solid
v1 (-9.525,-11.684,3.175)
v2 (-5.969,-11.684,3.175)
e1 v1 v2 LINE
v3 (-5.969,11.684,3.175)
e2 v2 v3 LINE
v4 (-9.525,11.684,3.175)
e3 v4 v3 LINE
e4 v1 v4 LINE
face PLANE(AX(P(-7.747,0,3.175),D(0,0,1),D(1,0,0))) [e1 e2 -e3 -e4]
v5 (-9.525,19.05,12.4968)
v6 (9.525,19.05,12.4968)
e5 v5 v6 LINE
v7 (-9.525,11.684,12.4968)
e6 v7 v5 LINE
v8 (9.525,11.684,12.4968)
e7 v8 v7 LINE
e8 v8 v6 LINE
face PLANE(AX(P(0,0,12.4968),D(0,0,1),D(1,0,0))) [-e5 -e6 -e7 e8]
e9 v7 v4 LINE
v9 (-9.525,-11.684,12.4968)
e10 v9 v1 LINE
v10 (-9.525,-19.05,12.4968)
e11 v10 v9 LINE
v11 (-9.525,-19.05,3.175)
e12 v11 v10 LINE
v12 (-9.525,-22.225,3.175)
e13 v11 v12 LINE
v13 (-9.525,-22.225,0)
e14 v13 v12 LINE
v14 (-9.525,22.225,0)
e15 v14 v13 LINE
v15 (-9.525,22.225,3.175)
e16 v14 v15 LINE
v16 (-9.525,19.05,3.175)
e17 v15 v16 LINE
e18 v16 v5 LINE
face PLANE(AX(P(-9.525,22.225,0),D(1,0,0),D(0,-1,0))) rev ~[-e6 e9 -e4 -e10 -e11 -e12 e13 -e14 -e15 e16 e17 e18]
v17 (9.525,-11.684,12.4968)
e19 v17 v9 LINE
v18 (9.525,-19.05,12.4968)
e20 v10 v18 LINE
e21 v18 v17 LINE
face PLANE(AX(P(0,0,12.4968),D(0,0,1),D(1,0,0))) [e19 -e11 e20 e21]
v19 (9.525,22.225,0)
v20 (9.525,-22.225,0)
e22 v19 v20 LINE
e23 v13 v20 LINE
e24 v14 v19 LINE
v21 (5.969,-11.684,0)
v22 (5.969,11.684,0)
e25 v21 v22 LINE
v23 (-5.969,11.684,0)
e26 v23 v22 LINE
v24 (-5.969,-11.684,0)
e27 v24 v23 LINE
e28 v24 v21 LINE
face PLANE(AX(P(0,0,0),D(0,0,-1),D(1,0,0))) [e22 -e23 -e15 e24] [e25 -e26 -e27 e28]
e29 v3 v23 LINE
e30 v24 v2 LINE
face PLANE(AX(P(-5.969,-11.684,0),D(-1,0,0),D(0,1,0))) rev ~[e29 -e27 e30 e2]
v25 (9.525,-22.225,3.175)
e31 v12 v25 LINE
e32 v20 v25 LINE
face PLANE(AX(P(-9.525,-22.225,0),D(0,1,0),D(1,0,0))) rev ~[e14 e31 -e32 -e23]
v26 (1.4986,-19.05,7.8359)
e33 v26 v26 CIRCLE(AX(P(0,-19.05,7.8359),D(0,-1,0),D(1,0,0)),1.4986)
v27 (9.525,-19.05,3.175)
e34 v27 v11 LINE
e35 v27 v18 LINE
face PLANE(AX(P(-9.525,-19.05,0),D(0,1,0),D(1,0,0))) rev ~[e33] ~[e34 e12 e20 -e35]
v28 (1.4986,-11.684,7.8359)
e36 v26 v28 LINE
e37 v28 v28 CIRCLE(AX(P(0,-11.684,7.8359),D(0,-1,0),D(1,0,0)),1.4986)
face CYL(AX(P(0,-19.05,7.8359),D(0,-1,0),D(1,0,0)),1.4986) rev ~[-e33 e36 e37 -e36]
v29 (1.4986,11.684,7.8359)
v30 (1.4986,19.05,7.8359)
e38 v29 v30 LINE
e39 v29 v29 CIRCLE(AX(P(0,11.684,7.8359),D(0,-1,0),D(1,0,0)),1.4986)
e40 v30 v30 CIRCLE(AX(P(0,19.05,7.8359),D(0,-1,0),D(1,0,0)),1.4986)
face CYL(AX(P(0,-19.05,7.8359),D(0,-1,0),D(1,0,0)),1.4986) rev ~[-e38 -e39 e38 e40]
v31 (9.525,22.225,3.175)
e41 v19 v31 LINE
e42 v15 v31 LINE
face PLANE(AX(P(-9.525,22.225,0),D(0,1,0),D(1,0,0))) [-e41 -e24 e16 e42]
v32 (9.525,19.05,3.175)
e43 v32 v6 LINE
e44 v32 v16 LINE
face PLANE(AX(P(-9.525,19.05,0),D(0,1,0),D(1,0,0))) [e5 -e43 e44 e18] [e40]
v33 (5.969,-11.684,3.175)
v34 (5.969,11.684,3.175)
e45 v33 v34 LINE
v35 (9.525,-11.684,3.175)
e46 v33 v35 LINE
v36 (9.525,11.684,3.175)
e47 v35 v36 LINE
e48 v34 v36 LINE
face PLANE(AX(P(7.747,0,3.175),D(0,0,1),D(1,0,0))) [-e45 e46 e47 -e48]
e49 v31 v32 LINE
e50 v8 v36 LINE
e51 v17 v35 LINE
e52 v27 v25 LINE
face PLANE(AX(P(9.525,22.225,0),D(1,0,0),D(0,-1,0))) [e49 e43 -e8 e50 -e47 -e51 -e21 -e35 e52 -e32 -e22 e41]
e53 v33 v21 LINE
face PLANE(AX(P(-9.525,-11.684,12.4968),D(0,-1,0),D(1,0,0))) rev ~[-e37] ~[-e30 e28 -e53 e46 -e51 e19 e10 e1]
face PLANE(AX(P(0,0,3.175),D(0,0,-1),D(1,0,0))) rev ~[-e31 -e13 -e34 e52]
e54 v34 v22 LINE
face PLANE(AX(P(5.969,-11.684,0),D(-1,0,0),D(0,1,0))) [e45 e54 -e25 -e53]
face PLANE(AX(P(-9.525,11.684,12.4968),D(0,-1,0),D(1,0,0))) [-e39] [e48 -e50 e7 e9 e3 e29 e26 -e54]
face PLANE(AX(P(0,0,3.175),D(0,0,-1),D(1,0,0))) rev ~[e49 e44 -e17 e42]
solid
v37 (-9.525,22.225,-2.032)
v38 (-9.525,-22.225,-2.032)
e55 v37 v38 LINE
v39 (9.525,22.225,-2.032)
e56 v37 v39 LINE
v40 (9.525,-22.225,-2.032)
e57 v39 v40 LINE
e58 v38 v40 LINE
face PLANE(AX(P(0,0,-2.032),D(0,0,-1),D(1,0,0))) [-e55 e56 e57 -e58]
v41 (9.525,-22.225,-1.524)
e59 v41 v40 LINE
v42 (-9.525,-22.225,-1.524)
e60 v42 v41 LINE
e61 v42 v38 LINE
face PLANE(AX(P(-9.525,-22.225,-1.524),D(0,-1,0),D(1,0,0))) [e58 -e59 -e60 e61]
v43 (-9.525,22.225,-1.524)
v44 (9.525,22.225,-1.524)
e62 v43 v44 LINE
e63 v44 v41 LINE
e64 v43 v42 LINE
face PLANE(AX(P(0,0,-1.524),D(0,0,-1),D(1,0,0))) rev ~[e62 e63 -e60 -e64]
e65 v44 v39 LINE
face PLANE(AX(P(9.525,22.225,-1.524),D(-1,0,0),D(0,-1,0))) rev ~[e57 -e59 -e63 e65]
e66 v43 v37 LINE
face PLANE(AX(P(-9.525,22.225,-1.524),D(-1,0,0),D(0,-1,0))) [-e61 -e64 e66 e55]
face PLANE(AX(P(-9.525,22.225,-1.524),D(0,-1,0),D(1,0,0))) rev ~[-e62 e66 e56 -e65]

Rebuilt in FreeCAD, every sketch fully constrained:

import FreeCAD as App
import Part
import Sketcher
from FreeCAD import Vector
Q = App.Units.Quantity

doc = App.newDocument("Part")
body = doc.addObject("PartDesign::Body", "Body")

# Sketch on XY plane
sketch1 = body.newObject("Sketcher::SketchObject", "Sketch")
sketch1.AttachmentSupport = (doc.getObject("XY_Plane"), [""])
sketch1.MapMode = "FlatFace"
sketch1.addGeometry([
    Part.LineSegment(Vector(-9.525, 19.05, 0), Vector(-9.525, -19.05, 0)),  # 0
    Part.LineSegment(Vector(-9.525, -19.05, 0), Vector(9.525, -19.05, 0)),  # 1
    Part.LineSegment(Vector(9.525, -19.05, 0), Vector(9.525, 19.05, 0)),  # 2
    Part.LineSegment(Vector(9.525, 19.05, 0), Vector(-9.525, 19.05, 0)),  # 3
    Part.LineSegment(Vector(5.969, -11.684, 0), Vector(-5.969, -11.684, 0)),  # 4
    Part.LineSegment(Vector(-5.969, -11.684, 0), Vector(-5.969, 11.684, 0)),  # 5
    Part.LineSegment(Vector(-5.969, 11.684, 0), Vector(5.969, 11.684, 0)),  # 6
    Part.LineSegment(Vector(5.969, 11.684, 0), Vector(5.969, -11.684, 0)),  # 7
], False)
sketch1.addConstraint([
    Sketcher.Constraint("Coincident", 0, 2, 1, 1),
    Sketcher.Constraint("Coincident", 1, 2, 2, 1),
    Sketcher.Constraint("Coincident", 2, 2, 3, 1),
    Sketcher.Constraint("Coincident", 3, 2, 0, 1),
    Sketcher.Constraint("Coincident", 4, 2, 5, 1),
    Sketcher.Constraint("Coincident", 5, 2, 6, 1),
    Sketcher.Constraint("Coincident", 6, 2, 7, 1),
    Sketcher.Constraint("Coincident", 7, 2, 4, 1),
    Sketcher.Constraint("Vertical", 0),
    Sketcher.Constraint("Horizontal", 1),
    Sketcher.Constraint("Vertical", 2),
    Sketcher.Constraint("Horizontal", 3),
    Sketcher.Constraint("Horizontal", 4),
    Sketcher.Constraint("Vertical", 5),
    Sketcher.Constraint("Horizontal", 6),
    Sketcher.Constraint("Vertical", 7),
    Sketcher.Constraint("Symmetric", 0, 2, 2, 2, -1, 1),
    Sketcher.Constraint("Symmetric", 4, 2, 6, 2, -1, 1),
    Sketcher.Constraint("DistanceY", 0, 2, 0, 1, Q("1.5 in")),
    Sketcher.Constraint("DistanceX", 1, 1, 1, 2, Q("0.75 in")),
    Sketcher.Constraint("DistanceX", 4, 2, 4, 1, Q("0.47 in")),
    Sketcher.Constraint("DistanceY", 5, 1, 5, 2, Q("0.92 in")),
])
pad1 = body.newObject("PartDesign::Pad", "Pad")
pad1.Profile = sketch1
pad1.Length = Q("0.492 in")

# Sketch on XY plane
sketch2 = body.newObject("Sketcher::SketchObject", "Sketch001")
sketch2.AttachmentSupport = (doc.getObject("XY_Plane"), [""])
sketch2.MapMode = "FlatFace"
sketch2.addGeometry([
    Part.LineSegment(Vector(-9.525, -22.225, 0), Vector(-9.525, 22.225, 0)),  # 0
    Part.LineSegment(Vector(-9.525, 22.225, 0), Vector(9.525, 22.225, 0)),  # 1
    Part.LineSegment(Vector(9.525, 22.225, 0), Vector(9.525, -22.225, 0)),  # 2
    Part.LineSegment(Vector(9.525, -22.225, 0), Vector(-9.525, -22.225, 0)),  # 3
    Part.LineSegment(Vector(5.969, 11.684, 0), Vector(-5.969, 11.684, 0)),  # 4
    Part.LineSegment(Vector(-5.969, 11.684, 0), Vector(-5.969, -11.684, 0)),  # 5
    Part.LineSegment(Vector(-5.969, -11.684, 0), Vector(5.969, -11.684, 0)),  # 6
    Part.LineSegment(Vector(5.969, -11.684, 0), Vector(5.969, 11.684, 0)),  # 7
], False)
sketch2.addConstraint([
    Sketcher.Constraint("Coincident", 0, 2, 1, 1),
    Sketcher.Constraint("Coincident", 1, 2, 2, 1),
    Sketcher.Constraint("Coincident", 2, 2, 3, 1),
    Sketcher.Constraint("Coincident", 3, 2, 0, 1),
    Sketcher.Constraint("Coincident", 4, 2, 5, 1),
    Sketcher.Constraint("Coincident", 5, 2, 6, 1),
    Sketcher.Constraint("Coincident", 6, 2, 7, 1),
    Sketcher.Constraint("Coincident", 7, 2, 4, 1),
    Sketcher.Constraint("Vertical", 0),
    Sketcher.Constraint("Horizontal", 1),
    Sketcher.Constraint("Vertical", 2),
    Sketcher.Constraint("Horizontal", 3),
    Sketcher.Constraint("Horizontal", 4),
    Sketcher.Constraint("Vertical", 5),
    Sketcher.Constraint("Horizontal", 6),
    Sketcher.Constraint("Vertical", 7),
    Sketcher.Constraint("Symmetric", 0, 2, 2, 2, -1, 1),
    Sketcher.Constraint("Symmetric", 4, 2, 6, 2, -1, 1),
    Sketcher.Constraint("DistanceX", 1, 1, 1, 2, Q("0.75 in")),
    Sketcher.Constraint("DistanceX", 4, 2, 4, 1, Q("0.47 in")),
    Sketcher.Constraint("DistanceY", 0, 1, 0, 2, Q("1.75 in")),
    Sketcher.Constraint("DistanceY", 5, 2, 5, 1, Q("0.92 in")),
])
pad2 = body.newObject("PartDesign::Pad", "Pad001")
pad2.Profile = sketch2
pad2.Length = Q("0.125 in")

# Sketch on XY plane
sketch3 = body.newObject("Sketcher::SketchObject", "Sketch002")
sketch3.AttachmentSupport = (doc.getObject("XY_Plane"), [""])
sketch3.MapMode = "FlatFace"
sketch3.AttachmentOffset = App.Placement(Vector(0, 0, 0.492 * 25.4), App.Rotation())
sketch3.addGeometry([
    Part.LineSegment(Vector(-9.525, 11.684, 0), Vector(-9.525, -11.684, 0)),  # 0
    Part.LineSegment(Vector(-9.525, -11.684, 0), Vector(-5.969, -11.684, 0)),  # 1
    Part.LineSegment(Vector(-5.969, -11.684, 0), Vector(-5.969, 11.684, 0)),  # 2
    Part.LineSegment(Vector(-5.969, 11.684, 0), Vector(-9.525, 11.684, 0)),  # 3
    Part.LineSegment(Vector(5.969, 11.684, 0), Vector(5.969, -11.684, 0)),  # 4
    Part.LineSegment(Vector(5.969, -11.684, 0), Vector(9.525, -11.684, 0)),  # 5
    Part.LineSegment(Vector(9.525, -11.684, 0), Vector(9.525, 11.684, 0)),  # 6
    Part.LineSegment(Vector(9.525, 11.684, 0), Vector(5.969, 11.684, 0)),  # 7
], False)
sketch3.addConstraint([
    Sketcher.Constraint("Coincident", 0, 2, 1, 1),
    Sketcher.Constraint("Coincident", 1, 2, 2, 1),
    Sketcher.Constraint("Coincident", 2, 2, 3, 1),
    Sketcher.Constraint("Coincident", 3, 2, 0, 1),
    Sketcher.Constraint("Coincident", 4, 2, 5, 1),
    Sketcher.Constraint("Coincident", 5, 2, 6, 1),
    Sketcher.Constraint("Coincident", 6, 2, 7, 1),
    Sketcher.Constraint("Coincident", 7, 2, 4, 1),
    Sketcher.Constraint("Vertical", 0),
    Sketcher.Constraint("Horizontal", 1),
    Sketcher.Constraint("Vertical", 2),
    Sketcher.Constraint("Horizontal", 3),
    Sketcher.Constraint("Vertical", 4),
    Sketcher.Constraint("Horizontal", 5),
    Sketcher.Constraint("Vertical", 6),
    Sketcher.Constraint("Horizontal", 7),
    Sketcher.Constraint("Symmetric", 2, 2, 4, 2, -1, 1),
    Sketcher.Constraint("Symmetric", 0, 2, 6, 2, -1, 1),
    Sketcher.Constraint("Horizontal", 1, 2, 4, 2),
    Sketcher.Constraint("DistanceX", 1, 1, 1, 2, Q("0.14 in")),
    Sketcher.Constraint("DistanceY", 0, 2, 0, 1, Q("0.92 in")),
    Sketcher.Constraint("DistanceX", 1, 2, 4, 2, Q("0.47 in")),
])
pocket1 = body.newObject("PartDesign::Pocket", "Pocket")
pocket1.Profile = sketch3
pocket1.Length = Q("0.367 in")

# Sketch on XZ plane
sketch4 = body.newObject("Sketcher::SketchObject", "Sketch003")
sketch4.AttachmentSupport = (doc.getObject("XZ_Plane"), [""])
sketch4.MapMode = "FlatFace"
sketch4.AttachmentOffset = App.Placement(Vector(0, 0, 0.75 * 25.4), App.Rotation())
sketch4.addGeometry(Part.Circle(Vector(0, 7.8359, 0), Vector(0, 0, 1), 1.4986), False)
sketch4.addConstraint([
    Sketcher.Constraint("PointOnObject", 0, 3, -2),
    Sketcher.Constraint("Diameter", 0, Q("0.118 in")),
    Sketcher.Constraint("DistanceY", -1, 1, 0, 3, Q("0.3085 in")),
])
pocket2 = body.newObject("PartDesign::Pocket", "Pocket001")
pocket2.Profile = sketch4
pocket2.Type = "ThroughAll"
body2 = doc.addObject("PartDesign::Body", "Body001")

# Sketch on XY plane
sketch5 = body2.newObject("Sketcher::SketchObject", "Sketch004")
sketch5.AttachmentSupport = (doc.getObject("XY_Plane001"), [""])
sketch5.MapMode = "FlatFace"
sketch5.AttachmentOffset = App.Placement(Vector(0, 0, -0.06 * 25.4), App.Rotation())
sketch5.addGeometry([
    Part.LineSegment(Vector(-9.525, -22.225, 0), Vector(-9.525, 22.225, 0)),
    Part.LineSegment(Vector(-9.525, 22.225, 0), Vector(9.525, 22.225, 0)),
    Part.LineSegment(Vector(9.525, 22.225, 0), Vector(9.525, -22.225, 0)),
    Part.LineSegment(Vector(9.525, -22.225, 0), Vector(-9.525, -22.225, 0)),
], False)
sketch5.addConstraint([
    Sketcher.Constraint("Coincident", 0, 2, 1, 1),
    Sketcher.Constraint("Coincident", 1, 2, 2, 1),
    Sketcher.Constraint("Coincident", 2, 2, 3, 1),
    Sketcher.Constraint("Coincident", 3, 2, 0, 1),
    Sketcher.Constraint("Vertical", 0),
    Sketcher.Constraint("Horizontal", 1),
    Sketcher.Constraint("Vertical", 2),
    Sketcher.Constraint("Horizontal", 3),
    Sketcher.Constraint("Symmetric", 0, 2, 2, 2, -1, 1),
    Sketcher.Constraint("DistanceX", 1, 1, 1, 2, Q("0.75 in")),
    Sketcher.Constraint("DistanceY", 0, 1, 0, 2, Q("1.75 in")),
])
pad3 = body2.newObject("PartDesign::Pad", "Pad002")
pad3.Profile = sketch5
pad3.Length = Q("0.02 in")
pad3.Reversed = True

doc.recompute()
